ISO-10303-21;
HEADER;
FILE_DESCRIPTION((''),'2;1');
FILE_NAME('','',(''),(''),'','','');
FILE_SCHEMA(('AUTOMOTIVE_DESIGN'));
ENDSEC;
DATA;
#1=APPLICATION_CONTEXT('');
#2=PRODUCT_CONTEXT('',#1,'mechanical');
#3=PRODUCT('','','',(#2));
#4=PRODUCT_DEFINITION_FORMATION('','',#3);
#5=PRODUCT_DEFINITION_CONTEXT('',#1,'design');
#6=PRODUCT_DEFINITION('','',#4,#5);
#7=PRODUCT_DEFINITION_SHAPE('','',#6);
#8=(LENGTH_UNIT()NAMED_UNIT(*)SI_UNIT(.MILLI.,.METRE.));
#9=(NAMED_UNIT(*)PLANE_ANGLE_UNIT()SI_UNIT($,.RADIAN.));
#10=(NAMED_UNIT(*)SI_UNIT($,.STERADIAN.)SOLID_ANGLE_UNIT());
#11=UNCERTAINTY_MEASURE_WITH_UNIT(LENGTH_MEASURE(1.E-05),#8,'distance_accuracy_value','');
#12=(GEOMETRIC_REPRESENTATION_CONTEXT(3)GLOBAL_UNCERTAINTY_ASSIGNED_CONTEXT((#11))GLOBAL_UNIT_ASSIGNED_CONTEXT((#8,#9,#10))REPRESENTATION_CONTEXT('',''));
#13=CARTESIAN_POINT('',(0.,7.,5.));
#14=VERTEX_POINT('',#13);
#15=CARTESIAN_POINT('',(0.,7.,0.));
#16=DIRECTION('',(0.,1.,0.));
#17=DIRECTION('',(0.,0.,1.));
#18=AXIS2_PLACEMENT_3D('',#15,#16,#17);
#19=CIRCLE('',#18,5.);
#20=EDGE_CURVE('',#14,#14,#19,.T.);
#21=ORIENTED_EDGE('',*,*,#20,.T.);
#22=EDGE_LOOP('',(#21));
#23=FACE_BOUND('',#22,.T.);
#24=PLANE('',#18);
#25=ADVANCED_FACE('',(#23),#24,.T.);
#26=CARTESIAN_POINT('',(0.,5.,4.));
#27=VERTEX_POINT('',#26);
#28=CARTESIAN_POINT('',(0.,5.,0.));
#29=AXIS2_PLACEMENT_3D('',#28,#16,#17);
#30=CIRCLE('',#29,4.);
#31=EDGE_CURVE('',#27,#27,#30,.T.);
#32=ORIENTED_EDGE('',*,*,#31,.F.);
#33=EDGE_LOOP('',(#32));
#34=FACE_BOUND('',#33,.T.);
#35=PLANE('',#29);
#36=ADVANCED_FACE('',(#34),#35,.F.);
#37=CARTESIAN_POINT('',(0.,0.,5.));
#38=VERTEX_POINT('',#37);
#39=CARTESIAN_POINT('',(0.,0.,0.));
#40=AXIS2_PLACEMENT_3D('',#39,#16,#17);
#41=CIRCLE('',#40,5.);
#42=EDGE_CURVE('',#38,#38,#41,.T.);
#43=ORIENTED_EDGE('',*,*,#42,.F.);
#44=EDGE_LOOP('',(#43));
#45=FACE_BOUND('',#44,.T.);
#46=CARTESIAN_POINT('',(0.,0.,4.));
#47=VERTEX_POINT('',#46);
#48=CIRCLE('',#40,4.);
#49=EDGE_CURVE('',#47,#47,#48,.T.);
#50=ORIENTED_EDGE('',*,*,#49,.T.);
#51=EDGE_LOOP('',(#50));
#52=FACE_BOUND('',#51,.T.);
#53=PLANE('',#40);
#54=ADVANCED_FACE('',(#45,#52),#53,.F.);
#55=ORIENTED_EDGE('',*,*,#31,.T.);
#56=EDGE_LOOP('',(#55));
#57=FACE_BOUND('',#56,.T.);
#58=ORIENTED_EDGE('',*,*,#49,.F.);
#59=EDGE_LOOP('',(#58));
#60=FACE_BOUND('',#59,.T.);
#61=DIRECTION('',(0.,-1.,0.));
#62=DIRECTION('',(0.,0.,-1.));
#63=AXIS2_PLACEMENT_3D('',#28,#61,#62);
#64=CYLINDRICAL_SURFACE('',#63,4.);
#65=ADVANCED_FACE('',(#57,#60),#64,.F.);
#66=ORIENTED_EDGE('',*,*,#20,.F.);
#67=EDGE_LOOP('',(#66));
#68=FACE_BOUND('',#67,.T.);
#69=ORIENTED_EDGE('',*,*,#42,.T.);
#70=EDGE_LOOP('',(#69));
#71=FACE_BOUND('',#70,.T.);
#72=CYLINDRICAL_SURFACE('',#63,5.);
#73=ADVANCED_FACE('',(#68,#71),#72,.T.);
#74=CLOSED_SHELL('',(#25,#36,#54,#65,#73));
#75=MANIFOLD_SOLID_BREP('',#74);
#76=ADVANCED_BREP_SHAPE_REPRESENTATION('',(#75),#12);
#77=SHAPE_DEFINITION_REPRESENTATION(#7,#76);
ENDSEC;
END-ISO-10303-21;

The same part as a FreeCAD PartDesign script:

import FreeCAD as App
import Part
import Sketcher

doc = App.newDocument("Part")
body = doc.addObject("PartDesign::Body", "Body")

# Sketch on XZ plane
sketch1 = doc.addObject("Sketcher::SketchObject", "Sketch")
body.addObject(sketch1)
sketch1.AttachmentSupport = (doc.XZ_Plane, [""])
sketch1.MapMode = "FlatFace"
sketch1.addGeometry([
    Part.Circle(App.Vector(0, 0, 0), App.Vector(0, 0, 1), 5),
    Part.Circle(App.Vector(0, 0, 0), App.Vector(0, 0, 1), 4),
], False)
sketch1.addConstraint([
    Sketcher.Constraint("Coincident", 0, 3, -1, 1),
    Sketcher.Constraint("Coincident", 1, 3, -1, 1),
    Sketcher.Constraint("Diameter", 0, 10.0),
    Sketcher.Constraint("Diameter", 1, 8.0),
])
pad1 = doc.addObject("PartDesign::Pad", "Pad")
body.addObject(pad1)
pad1.Profile = sketch1
pad1.Length = 5
pad1.Reversed = True

# Sketch on XZ plane
sketch2 = doc.addObject("Sketcher::SketchObject", "Sketch001")
body.addObject(sketch2)
sketch2.AttachmentSupport = (doc.XZ_Plane, [""])
sketch2.MapMode = "FlatFace"
sketch2.AttachmentOffset = App.Placement(App.Vector(0, 0, -5), App.Rotation())
sketch2.addGeometry(Part.Circle(App.Vector(0, 0, 0), App.Vector(0, 0, 1), 5), False)
sketch2.addConstraint([
    Sketcher.Constraint("Coincident", 0, 3, -1, 1),
    Sketcher.Constraint("Diameter", 0, 10.0),
])
pad2 = doc.addObject("PartDesign::Pad", "Pad001")
body.addObject(pad2)
pad2.Profile = sketch2
pad2.Length = 2
pad2.Reversed = True

doc.recompute()
